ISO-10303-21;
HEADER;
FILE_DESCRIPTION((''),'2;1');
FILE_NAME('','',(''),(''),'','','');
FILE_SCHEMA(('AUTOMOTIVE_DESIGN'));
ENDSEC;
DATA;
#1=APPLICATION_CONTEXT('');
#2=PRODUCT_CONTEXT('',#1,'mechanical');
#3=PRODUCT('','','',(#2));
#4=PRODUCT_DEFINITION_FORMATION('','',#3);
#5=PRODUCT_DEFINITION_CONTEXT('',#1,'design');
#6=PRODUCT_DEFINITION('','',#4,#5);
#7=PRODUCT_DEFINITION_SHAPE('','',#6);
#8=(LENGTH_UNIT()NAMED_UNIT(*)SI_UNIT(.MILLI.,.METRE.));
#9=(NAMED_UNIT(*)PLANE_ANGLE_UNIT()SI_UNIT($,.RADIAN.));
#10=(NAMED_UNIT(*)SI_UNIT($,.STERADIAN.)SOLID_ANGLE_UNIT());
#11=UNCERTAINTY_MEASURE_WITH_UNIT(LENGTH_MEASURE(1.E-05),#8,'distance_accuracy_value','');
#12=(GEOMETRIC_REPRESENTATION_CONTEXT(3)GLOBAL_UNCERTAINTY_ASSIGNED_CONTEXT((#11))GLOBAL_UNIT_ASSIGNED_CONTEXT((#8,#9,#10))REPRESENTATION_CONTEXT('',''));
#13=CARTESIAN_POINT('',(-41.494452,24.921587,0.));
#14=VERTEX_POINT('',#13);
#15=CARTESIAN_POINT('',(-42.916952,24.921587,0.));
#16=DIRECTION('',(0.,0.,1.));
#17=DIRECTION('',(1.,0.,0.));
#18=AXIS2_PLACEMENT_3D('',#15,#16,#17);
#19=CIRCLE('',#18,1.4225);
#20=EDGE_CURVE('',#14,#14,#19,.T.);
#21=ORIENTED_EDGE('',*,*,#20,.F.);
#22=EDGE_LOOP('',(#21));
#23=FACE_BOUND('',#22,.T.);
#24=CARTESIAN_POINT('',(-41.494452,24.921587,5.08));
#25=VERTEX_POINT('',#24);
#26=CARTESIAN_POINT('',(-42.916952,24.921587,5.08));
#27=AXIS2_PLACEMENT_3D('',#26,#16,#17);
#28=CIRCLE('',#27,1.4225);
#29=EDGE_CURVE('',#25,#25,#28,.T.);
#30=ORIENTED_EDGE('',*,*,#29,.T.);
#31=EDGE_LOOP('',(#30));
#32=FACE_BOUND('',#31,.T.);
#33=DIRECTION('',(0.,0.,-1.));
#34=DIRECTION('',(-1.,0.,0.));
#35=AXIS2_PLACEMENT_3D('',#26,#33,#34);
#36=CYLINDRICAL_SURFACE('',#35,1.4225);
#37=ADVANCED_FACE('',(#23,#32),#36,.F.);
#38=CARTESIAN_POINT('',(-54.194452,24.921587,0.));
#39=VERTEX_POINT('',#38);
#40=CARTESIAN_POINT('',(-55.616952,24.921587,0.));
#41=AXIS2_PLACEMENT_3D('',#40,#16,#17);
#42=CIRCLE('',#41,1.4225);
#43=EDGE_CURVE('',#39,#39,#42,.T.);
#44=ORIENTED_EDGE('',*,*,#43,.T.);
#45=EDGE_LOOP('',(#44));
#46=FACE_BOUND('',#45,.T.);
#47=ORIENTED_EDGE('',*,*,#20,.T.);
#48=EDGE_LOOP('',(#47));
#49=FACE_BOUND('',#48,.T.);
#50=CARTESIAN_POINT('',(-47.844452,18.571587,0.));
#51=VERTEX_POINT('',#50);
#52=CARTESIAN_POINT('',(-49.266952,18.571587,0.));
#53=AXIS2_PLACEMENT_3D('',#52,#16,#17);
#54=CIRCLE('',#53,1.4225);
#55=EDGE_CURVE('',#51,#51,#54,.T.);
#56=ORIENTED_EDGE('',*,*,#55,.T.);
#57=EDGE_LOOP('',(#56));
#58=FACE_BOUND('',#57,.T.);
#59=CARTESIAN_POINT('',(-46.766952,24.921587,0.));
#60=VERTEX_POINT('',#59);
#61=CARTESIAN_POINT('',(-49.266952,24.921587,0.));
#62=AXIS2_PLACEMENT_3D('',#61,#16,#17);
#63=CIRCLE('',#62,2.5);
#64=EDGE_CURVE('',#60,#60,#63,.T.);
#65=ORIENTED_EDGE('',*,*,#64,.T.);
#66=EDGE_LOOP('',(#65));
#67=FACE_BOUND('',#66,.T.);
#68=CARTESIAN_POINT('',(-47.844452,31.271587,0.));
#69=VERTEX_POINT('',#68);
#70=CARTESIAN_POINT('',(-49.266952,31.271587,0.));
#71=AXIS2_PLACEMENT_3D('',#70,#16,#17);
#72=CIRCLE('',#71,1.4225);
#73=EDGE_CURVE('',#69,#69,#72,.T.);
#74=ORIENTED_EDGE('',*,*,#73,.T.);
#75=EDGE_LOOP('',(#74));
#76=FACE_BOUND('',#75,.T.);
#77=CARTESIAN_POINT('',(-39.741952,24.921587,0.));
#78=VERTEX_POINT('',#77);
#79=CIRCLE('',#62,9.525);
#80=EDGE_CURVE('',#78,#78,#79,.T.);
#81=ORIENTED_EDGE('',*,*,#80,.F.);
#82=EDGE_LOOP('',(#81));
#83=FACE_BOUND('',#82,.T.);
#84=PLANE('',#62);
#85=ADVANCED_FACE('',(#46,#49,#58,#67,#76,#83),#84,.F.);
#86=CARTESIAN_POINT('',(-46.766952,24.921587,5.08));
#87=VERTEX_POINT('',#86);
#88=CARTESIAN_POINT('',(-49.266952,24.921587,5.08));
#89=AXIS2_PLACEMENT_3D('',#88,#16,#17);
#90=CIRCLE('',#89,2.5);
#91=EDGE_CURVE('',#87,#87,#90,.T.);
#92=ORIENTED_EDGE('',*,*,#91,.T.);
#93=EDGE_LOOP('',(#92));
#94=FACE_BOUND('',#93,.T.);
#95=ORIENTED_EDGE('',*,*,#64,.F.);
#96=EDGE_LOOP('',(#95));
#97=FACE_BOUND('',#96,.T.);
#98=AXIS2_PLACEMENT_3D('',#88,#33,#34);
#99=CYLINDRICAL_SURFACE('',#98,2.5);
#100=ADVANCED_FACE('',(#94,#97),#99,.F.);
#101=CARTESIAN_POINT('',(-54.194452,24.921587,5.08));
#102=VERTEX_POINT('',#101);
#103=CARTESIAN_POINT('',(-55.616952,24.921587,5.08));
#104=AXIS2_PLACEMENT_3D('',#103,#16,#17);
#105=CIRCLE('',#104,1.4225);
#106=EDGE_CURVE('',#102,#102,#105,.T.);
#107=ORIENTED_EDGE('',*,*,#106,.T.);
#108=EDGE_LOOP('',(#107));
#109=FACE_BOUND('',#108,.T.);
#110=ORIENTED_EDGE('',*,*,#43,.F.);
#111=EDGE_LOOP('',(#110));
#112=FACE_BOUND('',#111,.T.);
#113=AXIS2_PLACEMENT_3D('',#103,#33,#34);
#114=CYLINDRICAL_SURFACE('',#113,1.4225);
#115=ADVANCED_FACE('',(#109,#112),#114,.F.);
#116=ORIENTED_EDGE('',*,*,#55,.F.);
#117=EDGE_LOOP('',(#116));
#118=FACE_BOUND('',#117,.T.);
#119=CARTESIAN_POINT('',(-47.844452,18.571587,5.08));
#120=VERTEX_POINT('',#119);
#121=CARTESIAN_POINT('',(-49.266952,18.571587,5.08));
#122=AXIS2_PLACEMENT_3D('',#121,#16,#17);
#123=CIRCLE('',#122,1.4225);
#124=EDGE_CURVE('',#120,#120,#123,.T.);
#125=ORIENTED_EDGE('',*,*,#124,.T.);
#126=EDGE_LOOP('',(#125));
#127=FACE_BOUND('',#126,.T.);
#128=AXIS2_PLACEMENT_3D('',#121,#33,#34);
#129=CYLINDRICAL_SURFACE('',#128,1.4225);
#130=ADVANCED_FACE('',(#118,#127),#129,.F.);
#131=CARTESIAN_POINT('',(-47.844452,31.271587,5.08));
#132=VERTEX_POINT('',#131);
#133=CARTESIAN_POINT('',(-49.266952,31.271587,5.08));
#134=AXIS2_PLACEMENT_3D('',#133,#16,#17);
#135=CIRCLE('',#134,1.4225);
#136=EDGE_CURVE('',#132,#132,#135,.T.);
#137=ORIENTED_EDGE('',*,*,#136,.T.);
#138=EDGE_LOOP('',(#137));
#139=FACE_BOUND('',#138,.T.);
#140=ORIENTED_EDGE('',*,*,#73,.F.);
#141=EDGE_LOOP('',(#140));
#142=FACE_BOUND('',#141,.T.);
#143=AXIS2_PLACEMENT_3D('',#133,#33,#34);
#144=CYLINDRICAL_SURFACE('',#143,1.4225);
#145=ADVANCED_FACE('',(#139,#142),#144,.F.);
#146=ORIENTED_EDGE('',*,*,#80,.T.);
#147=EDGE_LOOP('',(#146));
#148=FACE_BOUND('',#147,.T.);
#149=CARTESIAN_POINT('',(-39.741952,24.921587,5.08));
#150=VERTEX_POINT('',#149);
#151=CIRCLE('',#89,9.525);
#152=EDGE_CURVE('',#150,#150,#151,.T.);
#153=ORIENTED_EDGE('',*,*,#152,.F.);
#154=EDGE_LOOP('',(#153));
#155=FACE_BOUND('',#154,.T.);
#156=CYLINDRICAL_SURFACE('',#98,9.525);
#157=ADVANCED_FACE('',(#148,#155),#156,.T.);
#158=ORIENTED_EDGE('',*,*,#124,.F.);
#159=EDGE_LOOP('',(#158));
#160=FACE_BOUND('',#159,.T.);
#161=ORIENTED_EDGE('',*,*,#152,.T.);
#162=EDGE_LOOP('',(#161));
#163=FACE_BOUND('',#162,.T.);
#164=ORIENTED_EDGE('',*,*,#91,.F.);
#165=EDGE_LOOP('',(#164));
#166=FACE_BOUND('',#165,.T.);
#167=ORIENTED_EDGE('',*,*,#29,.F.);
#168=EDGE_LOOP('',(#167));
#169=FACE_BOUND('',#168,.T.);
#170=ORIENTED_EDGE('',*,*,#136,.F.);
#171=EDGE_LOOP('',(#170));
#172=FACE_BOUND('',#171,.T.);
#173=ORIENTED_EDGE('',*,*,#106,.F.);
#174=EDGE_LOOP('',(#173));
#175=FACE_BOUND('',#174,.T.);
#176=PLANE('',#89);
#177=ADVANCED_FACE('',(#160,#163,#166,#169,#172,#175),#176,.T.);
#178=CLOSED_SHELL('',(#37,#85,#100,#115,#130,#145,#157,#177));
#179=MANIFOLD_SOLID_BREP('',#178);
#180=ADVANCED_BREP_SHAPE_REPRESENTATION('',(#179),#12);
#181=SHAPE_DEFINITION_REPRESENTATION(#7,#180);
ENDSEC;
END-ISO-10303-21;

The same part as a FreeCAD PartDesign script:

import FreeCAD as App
import Part
import Sketcher
from FreeCAD import Vector
Q = App.Units.Quantity

doc = App.newDocument("Part")
params = doc.addObject("Spreadsheet::Sheet", "Params")
for row, (alias, value) in enumerate([
    ("sketch1_diameter", "0.75 in"),
    ("pad1_length", "0.2 in"),
], start=1):
    params.set(f"A{row}", alias)
    params.set(f"B{row}", "=" + value)
    params.setAlias(f"B{row}", alias)

body = doc.addObject("PartDesign::Body", "Body")

# Sketch on XY plane
sketch1 = body.newObject("Sketcher::SketchObject", "Sketch")
sketch1.AttachmentSupport = (doc.getObject("XY_Plane"), [""])
sketch1.MapMode = "FlatFace"
sketch1.addGeometry([
    Part.Circle(Vector(-49.3, 24.9, 0), Vector(0, 0, 1), 9.5),  # 0
    Part.Circle(Vector(-49.3, 18.6, 0), Vector(0, 0, 1), 1.4),  # 1
    Part.Circle(Vector(-55.6, 24.9, 0), Vector(0, 0, 1), 1.4),  # 2
    Part.Circle(Vector(-49.3, 24.9, 0), Vector(0, 0, 1), 2.5),  # 3
    Part.Circle(Vector(-42.9, 24.9, 0), Vector(0, 0, 1), 1.4),  # 4
    Part.Circle(Vector(-49.3, 31.3, 0), Vector(0, 0, 1), 1.4),  # 5
], False)
sketch1.addConstraint([
    Sketcher.Constraint("Coincident", 3, 3, 0, 3),
    Sketcher.Constraint("Equal", 1, 2),
    Sketcher.Constraint("Equal", 2, 4),
    Sketcher.Constraint("Equal", 4, 5),
    Sketcher.Constraint("Horizontal", 0, 3, 2, 3),
    Sketcher.Constraint("Horizontal", 3, 3, 4, 3),
    Sketcher.Constraint("Vertical", 0, 3, 1, 3),
    Sketcher.Constraint("Vertical", 3, 3, 5, 3),
    Sketcher.Constraint("Diameter", 0, Q("0.75 in")),
    Sketcher.Constraint("DistanceX", 2, 3, 4, 3, Q("0.5 in")),
    Sketcher.Constraint("DistanceY", 1, 3, 5, 3, Q("0.5 in")),
    Sketcher.Constraint("Diameter", 1, Q("2.845 mm")),
    Sketcher.Constraint("Diameter", 3, Q("5 mm")),
    Sketcher.Constraint("DistanceY", 1, 3, 0, 3, Q("0.25 in")),
    Sketcher.Constraint("DistanceX", 2, 3, 0, 3, Q("0.25 in")),
    Sketcher.Constraint("DistanceX", 0, 3, -1, 1, Q("49.266952 mm")),
    Sketcher.Constraint("DistanceY", -1, 1, 0, 3, Q("24.921587 mm")),
])
sketch1.setExpression("Constraints[8]", "Params.sketch1_diameter")
pad1 = body.newObject("PartDesign::Pad", "Pad")
pad1.Profile = sketch1
pad1.setExpression("Length", "Params.pad1_length")

doc.recompute()
